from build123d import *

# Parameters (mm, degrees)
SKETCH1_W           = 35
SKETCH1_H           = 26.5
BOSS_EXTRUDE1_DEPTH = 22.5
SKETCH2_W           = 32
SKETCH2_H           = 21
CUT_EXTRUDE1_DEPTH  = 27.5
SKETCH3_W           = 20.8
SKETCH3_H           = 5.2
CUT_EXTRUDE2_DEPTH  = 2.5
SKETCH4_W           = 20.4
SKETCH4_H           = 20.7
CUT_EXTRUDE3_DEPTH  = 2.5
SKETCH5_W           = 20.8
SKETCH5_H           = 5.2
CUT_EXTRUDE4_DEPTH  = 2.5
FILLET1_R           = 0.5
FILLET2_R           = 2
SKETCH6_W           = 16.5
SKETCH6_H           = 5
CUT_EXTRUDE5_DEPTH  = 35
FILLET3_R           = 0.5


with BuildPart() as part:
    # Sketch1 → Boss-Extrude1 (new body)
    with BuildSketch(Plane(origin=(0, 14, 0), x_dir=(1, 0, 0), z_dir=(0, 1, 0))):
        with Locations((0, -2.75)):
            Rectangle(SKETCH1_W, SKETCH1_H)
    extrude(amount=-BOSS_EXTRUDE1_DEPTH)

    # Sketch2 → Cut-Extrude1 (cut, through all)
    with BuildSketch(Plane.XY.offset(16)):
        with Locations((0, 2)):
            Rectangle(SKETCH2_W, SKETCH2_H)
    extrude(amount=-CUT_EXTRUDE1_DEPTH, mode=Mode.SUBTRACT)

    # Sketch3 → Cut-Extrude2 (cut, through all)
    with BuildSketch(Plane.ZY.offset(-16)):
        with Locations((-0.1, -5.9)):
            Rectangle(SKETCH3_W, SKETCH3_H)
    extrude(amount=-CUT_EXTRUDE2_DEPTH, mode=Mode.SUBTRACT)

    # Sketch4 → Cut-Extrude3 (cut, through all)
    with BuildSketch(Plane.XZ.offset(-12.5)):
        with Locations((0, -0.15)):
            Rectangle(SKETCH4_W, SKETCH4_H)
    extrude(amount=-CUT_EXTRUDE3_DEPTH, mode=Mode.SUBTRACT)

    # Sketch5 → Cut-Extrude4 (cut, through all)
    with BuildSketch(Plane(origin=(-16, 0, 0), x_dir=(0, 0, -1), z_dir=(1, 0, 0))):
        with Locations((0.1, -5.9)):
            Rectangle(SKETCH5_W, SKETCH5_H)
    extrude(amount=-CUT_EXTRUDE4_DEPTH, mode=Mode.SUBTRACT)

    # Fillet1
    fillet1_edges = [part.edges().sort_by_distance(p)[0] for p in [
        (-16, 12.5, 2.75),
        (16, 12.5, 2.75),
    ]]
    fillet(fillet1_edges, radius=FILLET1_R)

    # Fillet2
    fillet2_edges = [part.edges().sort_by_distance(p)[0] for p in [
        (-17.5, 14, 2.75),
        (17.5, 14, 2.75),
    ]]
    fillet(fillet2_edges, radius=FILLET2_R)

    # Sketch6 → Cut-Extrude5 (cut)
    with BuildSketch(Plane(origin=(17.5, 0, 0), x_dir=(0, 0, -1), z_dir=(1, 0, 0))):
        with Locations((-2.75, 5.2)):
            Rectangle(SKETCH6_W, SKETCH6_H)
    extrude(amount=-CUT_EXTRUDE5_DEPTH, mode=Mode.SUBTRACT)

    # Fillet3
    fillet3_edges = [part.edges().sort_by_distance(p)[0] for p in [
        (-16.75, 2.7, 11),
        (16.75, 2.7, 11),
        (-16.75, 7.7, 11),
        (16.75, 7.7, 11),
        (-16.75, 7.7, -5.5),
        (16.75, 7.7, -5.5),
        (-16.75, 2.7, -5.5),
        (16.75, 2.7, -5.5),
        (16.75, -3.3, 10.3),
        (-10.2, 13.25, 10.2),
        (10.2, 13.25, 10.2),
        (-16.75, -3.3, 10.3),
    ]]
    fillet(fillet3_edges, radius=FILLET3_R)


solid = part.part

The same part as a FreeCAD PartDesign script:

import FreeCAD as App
import Part
import Sketcher
from FreeCAD import Vector


def edges_at(feature, points):
    """Names of the edges that pass closest to the given points."""
    edges = feature.Shape.Edges
    near = lambda p: min(range(len(edges)), key=lambda i: edges[i].distToShape(Part.Vertex(*p))[0])
    return sorted({f"Edge{near(p) + 1}" for p in points})


def add_polygon(sketch, points):
    """Adds a closed chain of lines whose ends are joined by coincident constraints."""
    first, n = sketch.GeometryCount, len(points)
    for a, b in zip(points, points[1:] + points[:1]):
        sketch.addGeometry(Part.LineSegment(App.Vector(*a, 0), App.Vector(*b, 0)), False)
    for i in range(n):
        sketch.addConstraint(Sketcher.Constraint("Coincident", first + i, 2, first + (i + 1) % n, 1))

doc = App.newDocument("Part")
body = doc.addObject("PartDesign::Body", "Body")

# Sketch on XZ plane
sketch1 = body.newObject("Sketcher::SketchObject", "Sketch")
sketch1.AttachmentSupport = (doc.getObject("XZ_Plane"), [""])
sketch1.MapMode = "FlatFace"
sketch1.AttachmentOffset = App.Placement(Vector(0, 0, -14), App.Rotation())
add_polygon(sketch1, [(-18, -10), (-18, 16), (18, 16), (18, -10)])  # lines 0-3
sketch1.addConstraint([
    Sketcher.Constraint("Vertical", 0),
    Sketcher.Constraint("Horizontal", 1),
    Sketcher.Constraint("Vertical", 2),
    Sketcher.Constraint("Horizontal", 3),
    Sketcher.Constraint("DistanceX", 1, 1, 1, 2, 35.0),
    Sketcher.Constraint("DistanceY", 0, 1, 0, 2, 26.5),
    Sketcher.Constraint("DistanceY", -1, 1, 0, 2, 16.0),
    Sketcher.Constraint("DistanceX", 0, 2, -1, 1, 17.5),
])
pad1 = body.newObject("PartDesign::Pad", "Pad")
pad1.Profile = sketch1
pad1.Length = 22.5

# Sketch on XY plane
sketch2 = body.newObject("Sketcher::SketchObject", "Sketch001")
sketch2.AttachmentSupport = (doc.getObject("XY_Plane"), [""])
sketch2.MapMode = "FlatFace"
sketch2.AttachmentOffset = App.Placement(Vector(0, 0, 16), App.Rotation())
add_polygon(sketch2, [(-16, 12), (-16, -8), (16, -8), (16, 12)])  # lines 0-3
sketch2.addConstraint([
    Sketcher.Constraint("Vertical", 0),
    Sketcher.Constraint("Horizontal", 1),
    Sketcher.Constraint("Vertical", 2),
    Sketcher.Constraint("Horizontal", 3),
    Sketcher.Constraint("DistanceX", 1, 1, 1, 2, 32.0),
    Sketcher.Constraint("DistanceY", 0, 2, 0, 1, 21.0),
    Sketcher.Constraint("DistanceX", 0, 2, -1, 1, 16.0),
    Sketcher.Constraint("DistanceY", 0, 2, -1, 1, 8.5),
])
pocket1 = body.newObject("PartDesign::Pocket", "Pocket")
pocket1.Profile = sketch2
pocket1.Type = "ThroughAll"

# Sketch on YZ plane
sketch3 = body.newObject("Sketcher::SketchObject", "Sketch002")
sketch3.AttachmentSupport = (doc.getObject("YZ_Plane"), [""])
sketch3.MapMode = "FlatFace"
sketch3.AttachmentOffset = App.Placement(Vector(0, 0, 16), App.Rotation())
add_polygon(sketch3, [(-3, -10), (-8, -10), (-8, 10), (-3, 10)])  # lines 0-3
sketch3.addConstraint([
    Sketcher.Constraint("Horizontal", 0),
    Sketcher.Constraint("Vertical", 1),
    Sketcher.Constraint("Horizontal", 2),
    Sketcher.Constraint("Vertical", 3),
    Sketcher.Constraint("DistanceX", 0, 2, 0, 1, 5.2),
    Sketcher.Constraint("DistanceY", 1, 1, 1, 2, 20.8),
    Sketcher.Constraint("DistanceX", 0, 2, -1, 1, 8.5),
    Sketcher.Constraint("DistanceY", 0, 2, -1, 1, 10.5),
])
pocket2 = body.newObject("PartDesign::Pocket", "Pocket001")
pocket2.Profile = sketch3
pocket2.Type = "ThroughAll"
pocket2.Reversed = True

# Sketch on XZ plane
sketch4 = body.newObject("Sketcher::SketchObject", "Sketch003")
sketch4.AttachmentSupport = (doc.getObject("XZ_Plane"), [""])
sketch4.MapMode = "FlatFace"
sketch4.AttachmentOffset = App.Placement(Vector(0, 0, -12.5), App.Rotation())
add_polygon(sketch4, [(-10, 10), (-10, -10), (10, -10), (10, 10)])  # lines 0-3
sketch4.addConstraint([
    Sketcher.Constraint("Vertical", 0),
    Sketcher.Constraint("Horizontal", 1),
    Sketcher.Constraint("Vertical", 2),
    Sketcher.Constraint("Horizontal", 3),
    Sketcher.Constraint("DistanceX", 1, 1, 1, 2, 20.4),
    Sketcher.Constraint("DistanceY", 0, 2, 0, 1, 20.7),
    Sketcher.Constraint("DistanceX", 0, 2, -1, 1, 10.2),
    Sketcher.Constraint("DistanceY", 0, 2, -1, 1, 10.5),
])
pocket3 = body.newObject("PartDesign::Pocket", "Pocket002")
pocket3.Profile = sketch4
pocket3.Type = "ThroughAll"

# Sketch on YZ plane
sketch5 = body.newObject("Sketcher::SketchObject", "Sketch004")
sketch5.AttachmentSupport = (doc.getObject("YZ_Plane"), [""])
sketch5.MapMode = "FlatFace"
sketch5.AttachmentOffset = App.Placement(Vector(0, 0, -16), App.Rotation())
add_polygon(sketch5, [(-3, 10), (-8, 10), (-8, -10), (-3, -10)])  # lines 0-3
sketch5.addConstraint([
    Sketcher.Constraint("Horizontal", 0),
    Sketcher.Constraint("Vertical", 1),
    Sketcher.Constraint("Horizontal", 2),
    Sketcher.Constraint("Vertical", 3),
    Sketcher.Constraint("DistanceX", 0, 2, 0, 1, 5.2),
    Sketcher.Constraint("DistanceY", 1, 2, 1, 1, 20.8),
    Sketcher.Constraint("DistanceX", 0, 2, -1, 1, 8.5),
    Sketcher.Constraint("DistanceY", -1, 1, 0, 2, 10.3),
])
pocket4 = body.newObject("PartDesign::Pocket", "Pocket003")
pocket4.Profile = sketch5
pocket4.Type = "ThroughAll"
doc.recompute()

fillet = body.newObject("PartDesign::Fillet", "Fillet")
fillet.Base = (pocket4, edges_at(pocket4, [(-16, 12.5, 2.75), (16, 12.5, 2.75)]))
fillet.Radius = 0.5
doc.recompute()

fillet2 = body.newObject("PartDesign::Fillet", "Fillet001")
fillet2.Base = (fillet, edges_at(fillet, [(-17.5, 14, 2.75), (17.5, 14, 2.75)]))
fillet2.Radius = 2

# Sketch on YZ plane
sketch6 = body.newObject("Sketcher::SketchObject", "Sketch005")
sketch6.AttachmentSupport = (doc.getObject("YZ_Plane"), [""])
sketch6.MapMode = "FlatFace"
sketch6.AttachmentOffset = App.Placement(Vector(0, 0, 17.5), App.Rotation())
add_polygon(sketch6, [(8, 11), (3, 11), (3, -6), (8, -6)])  # lines 0-3
sketch6.addConstraint([
    Sketcher.Constraint("Horizontal", 0),
    Sketcher.Constraint("Vertical", 1),
    Sketcher.Constraint("Horizontal", 2),
    Sketcher.Constraint("Vertical", 3),
    Sketcher.Constraint("DistanceX", 0, 2, 0, 1, 5.0),
    Sketcher.Constraint("DistanceY", 1, 2, 1, 1, 16.5),
    Sketcher.Constraint("DistanceY", -1, 1, 0, 2, 11.0),
    Sketcher.Constraint("DistanceX", -1, 1, 0, 2, 2.7),
])
pocket5 = body.newObject("PartDesign::Pocket", "Pocket004")
pocket5.Profile = sketch6
pocket5.Length = 35
doc.recompute()

fillet3 = body.newObject("PartDesign::Fillet", "Fillet002")
fillet3.Base = (pocket5, edges_at(pocket5, [
    (-16.75, 2.7, 11),
    (16.75, 2.7, 11),
    (-16.75, 7.7, 11),
    (16.75, 7.7, 11),
    (-16.75, 7.7, -5.5),
    (16.75, 7.7, -5.5),
    (-16.75, 2.7, -5.5),
    (16.75, 2.7, -5.5),
    (16.75, -3.3, 10.3),
    (-10.2, 13.25, 10.2),
    (10.2, 13.25, 10.2),
    (-16.75, -3.3, 10.3),
]))
fillet3.Radius = 0.5

doc.recompute()
